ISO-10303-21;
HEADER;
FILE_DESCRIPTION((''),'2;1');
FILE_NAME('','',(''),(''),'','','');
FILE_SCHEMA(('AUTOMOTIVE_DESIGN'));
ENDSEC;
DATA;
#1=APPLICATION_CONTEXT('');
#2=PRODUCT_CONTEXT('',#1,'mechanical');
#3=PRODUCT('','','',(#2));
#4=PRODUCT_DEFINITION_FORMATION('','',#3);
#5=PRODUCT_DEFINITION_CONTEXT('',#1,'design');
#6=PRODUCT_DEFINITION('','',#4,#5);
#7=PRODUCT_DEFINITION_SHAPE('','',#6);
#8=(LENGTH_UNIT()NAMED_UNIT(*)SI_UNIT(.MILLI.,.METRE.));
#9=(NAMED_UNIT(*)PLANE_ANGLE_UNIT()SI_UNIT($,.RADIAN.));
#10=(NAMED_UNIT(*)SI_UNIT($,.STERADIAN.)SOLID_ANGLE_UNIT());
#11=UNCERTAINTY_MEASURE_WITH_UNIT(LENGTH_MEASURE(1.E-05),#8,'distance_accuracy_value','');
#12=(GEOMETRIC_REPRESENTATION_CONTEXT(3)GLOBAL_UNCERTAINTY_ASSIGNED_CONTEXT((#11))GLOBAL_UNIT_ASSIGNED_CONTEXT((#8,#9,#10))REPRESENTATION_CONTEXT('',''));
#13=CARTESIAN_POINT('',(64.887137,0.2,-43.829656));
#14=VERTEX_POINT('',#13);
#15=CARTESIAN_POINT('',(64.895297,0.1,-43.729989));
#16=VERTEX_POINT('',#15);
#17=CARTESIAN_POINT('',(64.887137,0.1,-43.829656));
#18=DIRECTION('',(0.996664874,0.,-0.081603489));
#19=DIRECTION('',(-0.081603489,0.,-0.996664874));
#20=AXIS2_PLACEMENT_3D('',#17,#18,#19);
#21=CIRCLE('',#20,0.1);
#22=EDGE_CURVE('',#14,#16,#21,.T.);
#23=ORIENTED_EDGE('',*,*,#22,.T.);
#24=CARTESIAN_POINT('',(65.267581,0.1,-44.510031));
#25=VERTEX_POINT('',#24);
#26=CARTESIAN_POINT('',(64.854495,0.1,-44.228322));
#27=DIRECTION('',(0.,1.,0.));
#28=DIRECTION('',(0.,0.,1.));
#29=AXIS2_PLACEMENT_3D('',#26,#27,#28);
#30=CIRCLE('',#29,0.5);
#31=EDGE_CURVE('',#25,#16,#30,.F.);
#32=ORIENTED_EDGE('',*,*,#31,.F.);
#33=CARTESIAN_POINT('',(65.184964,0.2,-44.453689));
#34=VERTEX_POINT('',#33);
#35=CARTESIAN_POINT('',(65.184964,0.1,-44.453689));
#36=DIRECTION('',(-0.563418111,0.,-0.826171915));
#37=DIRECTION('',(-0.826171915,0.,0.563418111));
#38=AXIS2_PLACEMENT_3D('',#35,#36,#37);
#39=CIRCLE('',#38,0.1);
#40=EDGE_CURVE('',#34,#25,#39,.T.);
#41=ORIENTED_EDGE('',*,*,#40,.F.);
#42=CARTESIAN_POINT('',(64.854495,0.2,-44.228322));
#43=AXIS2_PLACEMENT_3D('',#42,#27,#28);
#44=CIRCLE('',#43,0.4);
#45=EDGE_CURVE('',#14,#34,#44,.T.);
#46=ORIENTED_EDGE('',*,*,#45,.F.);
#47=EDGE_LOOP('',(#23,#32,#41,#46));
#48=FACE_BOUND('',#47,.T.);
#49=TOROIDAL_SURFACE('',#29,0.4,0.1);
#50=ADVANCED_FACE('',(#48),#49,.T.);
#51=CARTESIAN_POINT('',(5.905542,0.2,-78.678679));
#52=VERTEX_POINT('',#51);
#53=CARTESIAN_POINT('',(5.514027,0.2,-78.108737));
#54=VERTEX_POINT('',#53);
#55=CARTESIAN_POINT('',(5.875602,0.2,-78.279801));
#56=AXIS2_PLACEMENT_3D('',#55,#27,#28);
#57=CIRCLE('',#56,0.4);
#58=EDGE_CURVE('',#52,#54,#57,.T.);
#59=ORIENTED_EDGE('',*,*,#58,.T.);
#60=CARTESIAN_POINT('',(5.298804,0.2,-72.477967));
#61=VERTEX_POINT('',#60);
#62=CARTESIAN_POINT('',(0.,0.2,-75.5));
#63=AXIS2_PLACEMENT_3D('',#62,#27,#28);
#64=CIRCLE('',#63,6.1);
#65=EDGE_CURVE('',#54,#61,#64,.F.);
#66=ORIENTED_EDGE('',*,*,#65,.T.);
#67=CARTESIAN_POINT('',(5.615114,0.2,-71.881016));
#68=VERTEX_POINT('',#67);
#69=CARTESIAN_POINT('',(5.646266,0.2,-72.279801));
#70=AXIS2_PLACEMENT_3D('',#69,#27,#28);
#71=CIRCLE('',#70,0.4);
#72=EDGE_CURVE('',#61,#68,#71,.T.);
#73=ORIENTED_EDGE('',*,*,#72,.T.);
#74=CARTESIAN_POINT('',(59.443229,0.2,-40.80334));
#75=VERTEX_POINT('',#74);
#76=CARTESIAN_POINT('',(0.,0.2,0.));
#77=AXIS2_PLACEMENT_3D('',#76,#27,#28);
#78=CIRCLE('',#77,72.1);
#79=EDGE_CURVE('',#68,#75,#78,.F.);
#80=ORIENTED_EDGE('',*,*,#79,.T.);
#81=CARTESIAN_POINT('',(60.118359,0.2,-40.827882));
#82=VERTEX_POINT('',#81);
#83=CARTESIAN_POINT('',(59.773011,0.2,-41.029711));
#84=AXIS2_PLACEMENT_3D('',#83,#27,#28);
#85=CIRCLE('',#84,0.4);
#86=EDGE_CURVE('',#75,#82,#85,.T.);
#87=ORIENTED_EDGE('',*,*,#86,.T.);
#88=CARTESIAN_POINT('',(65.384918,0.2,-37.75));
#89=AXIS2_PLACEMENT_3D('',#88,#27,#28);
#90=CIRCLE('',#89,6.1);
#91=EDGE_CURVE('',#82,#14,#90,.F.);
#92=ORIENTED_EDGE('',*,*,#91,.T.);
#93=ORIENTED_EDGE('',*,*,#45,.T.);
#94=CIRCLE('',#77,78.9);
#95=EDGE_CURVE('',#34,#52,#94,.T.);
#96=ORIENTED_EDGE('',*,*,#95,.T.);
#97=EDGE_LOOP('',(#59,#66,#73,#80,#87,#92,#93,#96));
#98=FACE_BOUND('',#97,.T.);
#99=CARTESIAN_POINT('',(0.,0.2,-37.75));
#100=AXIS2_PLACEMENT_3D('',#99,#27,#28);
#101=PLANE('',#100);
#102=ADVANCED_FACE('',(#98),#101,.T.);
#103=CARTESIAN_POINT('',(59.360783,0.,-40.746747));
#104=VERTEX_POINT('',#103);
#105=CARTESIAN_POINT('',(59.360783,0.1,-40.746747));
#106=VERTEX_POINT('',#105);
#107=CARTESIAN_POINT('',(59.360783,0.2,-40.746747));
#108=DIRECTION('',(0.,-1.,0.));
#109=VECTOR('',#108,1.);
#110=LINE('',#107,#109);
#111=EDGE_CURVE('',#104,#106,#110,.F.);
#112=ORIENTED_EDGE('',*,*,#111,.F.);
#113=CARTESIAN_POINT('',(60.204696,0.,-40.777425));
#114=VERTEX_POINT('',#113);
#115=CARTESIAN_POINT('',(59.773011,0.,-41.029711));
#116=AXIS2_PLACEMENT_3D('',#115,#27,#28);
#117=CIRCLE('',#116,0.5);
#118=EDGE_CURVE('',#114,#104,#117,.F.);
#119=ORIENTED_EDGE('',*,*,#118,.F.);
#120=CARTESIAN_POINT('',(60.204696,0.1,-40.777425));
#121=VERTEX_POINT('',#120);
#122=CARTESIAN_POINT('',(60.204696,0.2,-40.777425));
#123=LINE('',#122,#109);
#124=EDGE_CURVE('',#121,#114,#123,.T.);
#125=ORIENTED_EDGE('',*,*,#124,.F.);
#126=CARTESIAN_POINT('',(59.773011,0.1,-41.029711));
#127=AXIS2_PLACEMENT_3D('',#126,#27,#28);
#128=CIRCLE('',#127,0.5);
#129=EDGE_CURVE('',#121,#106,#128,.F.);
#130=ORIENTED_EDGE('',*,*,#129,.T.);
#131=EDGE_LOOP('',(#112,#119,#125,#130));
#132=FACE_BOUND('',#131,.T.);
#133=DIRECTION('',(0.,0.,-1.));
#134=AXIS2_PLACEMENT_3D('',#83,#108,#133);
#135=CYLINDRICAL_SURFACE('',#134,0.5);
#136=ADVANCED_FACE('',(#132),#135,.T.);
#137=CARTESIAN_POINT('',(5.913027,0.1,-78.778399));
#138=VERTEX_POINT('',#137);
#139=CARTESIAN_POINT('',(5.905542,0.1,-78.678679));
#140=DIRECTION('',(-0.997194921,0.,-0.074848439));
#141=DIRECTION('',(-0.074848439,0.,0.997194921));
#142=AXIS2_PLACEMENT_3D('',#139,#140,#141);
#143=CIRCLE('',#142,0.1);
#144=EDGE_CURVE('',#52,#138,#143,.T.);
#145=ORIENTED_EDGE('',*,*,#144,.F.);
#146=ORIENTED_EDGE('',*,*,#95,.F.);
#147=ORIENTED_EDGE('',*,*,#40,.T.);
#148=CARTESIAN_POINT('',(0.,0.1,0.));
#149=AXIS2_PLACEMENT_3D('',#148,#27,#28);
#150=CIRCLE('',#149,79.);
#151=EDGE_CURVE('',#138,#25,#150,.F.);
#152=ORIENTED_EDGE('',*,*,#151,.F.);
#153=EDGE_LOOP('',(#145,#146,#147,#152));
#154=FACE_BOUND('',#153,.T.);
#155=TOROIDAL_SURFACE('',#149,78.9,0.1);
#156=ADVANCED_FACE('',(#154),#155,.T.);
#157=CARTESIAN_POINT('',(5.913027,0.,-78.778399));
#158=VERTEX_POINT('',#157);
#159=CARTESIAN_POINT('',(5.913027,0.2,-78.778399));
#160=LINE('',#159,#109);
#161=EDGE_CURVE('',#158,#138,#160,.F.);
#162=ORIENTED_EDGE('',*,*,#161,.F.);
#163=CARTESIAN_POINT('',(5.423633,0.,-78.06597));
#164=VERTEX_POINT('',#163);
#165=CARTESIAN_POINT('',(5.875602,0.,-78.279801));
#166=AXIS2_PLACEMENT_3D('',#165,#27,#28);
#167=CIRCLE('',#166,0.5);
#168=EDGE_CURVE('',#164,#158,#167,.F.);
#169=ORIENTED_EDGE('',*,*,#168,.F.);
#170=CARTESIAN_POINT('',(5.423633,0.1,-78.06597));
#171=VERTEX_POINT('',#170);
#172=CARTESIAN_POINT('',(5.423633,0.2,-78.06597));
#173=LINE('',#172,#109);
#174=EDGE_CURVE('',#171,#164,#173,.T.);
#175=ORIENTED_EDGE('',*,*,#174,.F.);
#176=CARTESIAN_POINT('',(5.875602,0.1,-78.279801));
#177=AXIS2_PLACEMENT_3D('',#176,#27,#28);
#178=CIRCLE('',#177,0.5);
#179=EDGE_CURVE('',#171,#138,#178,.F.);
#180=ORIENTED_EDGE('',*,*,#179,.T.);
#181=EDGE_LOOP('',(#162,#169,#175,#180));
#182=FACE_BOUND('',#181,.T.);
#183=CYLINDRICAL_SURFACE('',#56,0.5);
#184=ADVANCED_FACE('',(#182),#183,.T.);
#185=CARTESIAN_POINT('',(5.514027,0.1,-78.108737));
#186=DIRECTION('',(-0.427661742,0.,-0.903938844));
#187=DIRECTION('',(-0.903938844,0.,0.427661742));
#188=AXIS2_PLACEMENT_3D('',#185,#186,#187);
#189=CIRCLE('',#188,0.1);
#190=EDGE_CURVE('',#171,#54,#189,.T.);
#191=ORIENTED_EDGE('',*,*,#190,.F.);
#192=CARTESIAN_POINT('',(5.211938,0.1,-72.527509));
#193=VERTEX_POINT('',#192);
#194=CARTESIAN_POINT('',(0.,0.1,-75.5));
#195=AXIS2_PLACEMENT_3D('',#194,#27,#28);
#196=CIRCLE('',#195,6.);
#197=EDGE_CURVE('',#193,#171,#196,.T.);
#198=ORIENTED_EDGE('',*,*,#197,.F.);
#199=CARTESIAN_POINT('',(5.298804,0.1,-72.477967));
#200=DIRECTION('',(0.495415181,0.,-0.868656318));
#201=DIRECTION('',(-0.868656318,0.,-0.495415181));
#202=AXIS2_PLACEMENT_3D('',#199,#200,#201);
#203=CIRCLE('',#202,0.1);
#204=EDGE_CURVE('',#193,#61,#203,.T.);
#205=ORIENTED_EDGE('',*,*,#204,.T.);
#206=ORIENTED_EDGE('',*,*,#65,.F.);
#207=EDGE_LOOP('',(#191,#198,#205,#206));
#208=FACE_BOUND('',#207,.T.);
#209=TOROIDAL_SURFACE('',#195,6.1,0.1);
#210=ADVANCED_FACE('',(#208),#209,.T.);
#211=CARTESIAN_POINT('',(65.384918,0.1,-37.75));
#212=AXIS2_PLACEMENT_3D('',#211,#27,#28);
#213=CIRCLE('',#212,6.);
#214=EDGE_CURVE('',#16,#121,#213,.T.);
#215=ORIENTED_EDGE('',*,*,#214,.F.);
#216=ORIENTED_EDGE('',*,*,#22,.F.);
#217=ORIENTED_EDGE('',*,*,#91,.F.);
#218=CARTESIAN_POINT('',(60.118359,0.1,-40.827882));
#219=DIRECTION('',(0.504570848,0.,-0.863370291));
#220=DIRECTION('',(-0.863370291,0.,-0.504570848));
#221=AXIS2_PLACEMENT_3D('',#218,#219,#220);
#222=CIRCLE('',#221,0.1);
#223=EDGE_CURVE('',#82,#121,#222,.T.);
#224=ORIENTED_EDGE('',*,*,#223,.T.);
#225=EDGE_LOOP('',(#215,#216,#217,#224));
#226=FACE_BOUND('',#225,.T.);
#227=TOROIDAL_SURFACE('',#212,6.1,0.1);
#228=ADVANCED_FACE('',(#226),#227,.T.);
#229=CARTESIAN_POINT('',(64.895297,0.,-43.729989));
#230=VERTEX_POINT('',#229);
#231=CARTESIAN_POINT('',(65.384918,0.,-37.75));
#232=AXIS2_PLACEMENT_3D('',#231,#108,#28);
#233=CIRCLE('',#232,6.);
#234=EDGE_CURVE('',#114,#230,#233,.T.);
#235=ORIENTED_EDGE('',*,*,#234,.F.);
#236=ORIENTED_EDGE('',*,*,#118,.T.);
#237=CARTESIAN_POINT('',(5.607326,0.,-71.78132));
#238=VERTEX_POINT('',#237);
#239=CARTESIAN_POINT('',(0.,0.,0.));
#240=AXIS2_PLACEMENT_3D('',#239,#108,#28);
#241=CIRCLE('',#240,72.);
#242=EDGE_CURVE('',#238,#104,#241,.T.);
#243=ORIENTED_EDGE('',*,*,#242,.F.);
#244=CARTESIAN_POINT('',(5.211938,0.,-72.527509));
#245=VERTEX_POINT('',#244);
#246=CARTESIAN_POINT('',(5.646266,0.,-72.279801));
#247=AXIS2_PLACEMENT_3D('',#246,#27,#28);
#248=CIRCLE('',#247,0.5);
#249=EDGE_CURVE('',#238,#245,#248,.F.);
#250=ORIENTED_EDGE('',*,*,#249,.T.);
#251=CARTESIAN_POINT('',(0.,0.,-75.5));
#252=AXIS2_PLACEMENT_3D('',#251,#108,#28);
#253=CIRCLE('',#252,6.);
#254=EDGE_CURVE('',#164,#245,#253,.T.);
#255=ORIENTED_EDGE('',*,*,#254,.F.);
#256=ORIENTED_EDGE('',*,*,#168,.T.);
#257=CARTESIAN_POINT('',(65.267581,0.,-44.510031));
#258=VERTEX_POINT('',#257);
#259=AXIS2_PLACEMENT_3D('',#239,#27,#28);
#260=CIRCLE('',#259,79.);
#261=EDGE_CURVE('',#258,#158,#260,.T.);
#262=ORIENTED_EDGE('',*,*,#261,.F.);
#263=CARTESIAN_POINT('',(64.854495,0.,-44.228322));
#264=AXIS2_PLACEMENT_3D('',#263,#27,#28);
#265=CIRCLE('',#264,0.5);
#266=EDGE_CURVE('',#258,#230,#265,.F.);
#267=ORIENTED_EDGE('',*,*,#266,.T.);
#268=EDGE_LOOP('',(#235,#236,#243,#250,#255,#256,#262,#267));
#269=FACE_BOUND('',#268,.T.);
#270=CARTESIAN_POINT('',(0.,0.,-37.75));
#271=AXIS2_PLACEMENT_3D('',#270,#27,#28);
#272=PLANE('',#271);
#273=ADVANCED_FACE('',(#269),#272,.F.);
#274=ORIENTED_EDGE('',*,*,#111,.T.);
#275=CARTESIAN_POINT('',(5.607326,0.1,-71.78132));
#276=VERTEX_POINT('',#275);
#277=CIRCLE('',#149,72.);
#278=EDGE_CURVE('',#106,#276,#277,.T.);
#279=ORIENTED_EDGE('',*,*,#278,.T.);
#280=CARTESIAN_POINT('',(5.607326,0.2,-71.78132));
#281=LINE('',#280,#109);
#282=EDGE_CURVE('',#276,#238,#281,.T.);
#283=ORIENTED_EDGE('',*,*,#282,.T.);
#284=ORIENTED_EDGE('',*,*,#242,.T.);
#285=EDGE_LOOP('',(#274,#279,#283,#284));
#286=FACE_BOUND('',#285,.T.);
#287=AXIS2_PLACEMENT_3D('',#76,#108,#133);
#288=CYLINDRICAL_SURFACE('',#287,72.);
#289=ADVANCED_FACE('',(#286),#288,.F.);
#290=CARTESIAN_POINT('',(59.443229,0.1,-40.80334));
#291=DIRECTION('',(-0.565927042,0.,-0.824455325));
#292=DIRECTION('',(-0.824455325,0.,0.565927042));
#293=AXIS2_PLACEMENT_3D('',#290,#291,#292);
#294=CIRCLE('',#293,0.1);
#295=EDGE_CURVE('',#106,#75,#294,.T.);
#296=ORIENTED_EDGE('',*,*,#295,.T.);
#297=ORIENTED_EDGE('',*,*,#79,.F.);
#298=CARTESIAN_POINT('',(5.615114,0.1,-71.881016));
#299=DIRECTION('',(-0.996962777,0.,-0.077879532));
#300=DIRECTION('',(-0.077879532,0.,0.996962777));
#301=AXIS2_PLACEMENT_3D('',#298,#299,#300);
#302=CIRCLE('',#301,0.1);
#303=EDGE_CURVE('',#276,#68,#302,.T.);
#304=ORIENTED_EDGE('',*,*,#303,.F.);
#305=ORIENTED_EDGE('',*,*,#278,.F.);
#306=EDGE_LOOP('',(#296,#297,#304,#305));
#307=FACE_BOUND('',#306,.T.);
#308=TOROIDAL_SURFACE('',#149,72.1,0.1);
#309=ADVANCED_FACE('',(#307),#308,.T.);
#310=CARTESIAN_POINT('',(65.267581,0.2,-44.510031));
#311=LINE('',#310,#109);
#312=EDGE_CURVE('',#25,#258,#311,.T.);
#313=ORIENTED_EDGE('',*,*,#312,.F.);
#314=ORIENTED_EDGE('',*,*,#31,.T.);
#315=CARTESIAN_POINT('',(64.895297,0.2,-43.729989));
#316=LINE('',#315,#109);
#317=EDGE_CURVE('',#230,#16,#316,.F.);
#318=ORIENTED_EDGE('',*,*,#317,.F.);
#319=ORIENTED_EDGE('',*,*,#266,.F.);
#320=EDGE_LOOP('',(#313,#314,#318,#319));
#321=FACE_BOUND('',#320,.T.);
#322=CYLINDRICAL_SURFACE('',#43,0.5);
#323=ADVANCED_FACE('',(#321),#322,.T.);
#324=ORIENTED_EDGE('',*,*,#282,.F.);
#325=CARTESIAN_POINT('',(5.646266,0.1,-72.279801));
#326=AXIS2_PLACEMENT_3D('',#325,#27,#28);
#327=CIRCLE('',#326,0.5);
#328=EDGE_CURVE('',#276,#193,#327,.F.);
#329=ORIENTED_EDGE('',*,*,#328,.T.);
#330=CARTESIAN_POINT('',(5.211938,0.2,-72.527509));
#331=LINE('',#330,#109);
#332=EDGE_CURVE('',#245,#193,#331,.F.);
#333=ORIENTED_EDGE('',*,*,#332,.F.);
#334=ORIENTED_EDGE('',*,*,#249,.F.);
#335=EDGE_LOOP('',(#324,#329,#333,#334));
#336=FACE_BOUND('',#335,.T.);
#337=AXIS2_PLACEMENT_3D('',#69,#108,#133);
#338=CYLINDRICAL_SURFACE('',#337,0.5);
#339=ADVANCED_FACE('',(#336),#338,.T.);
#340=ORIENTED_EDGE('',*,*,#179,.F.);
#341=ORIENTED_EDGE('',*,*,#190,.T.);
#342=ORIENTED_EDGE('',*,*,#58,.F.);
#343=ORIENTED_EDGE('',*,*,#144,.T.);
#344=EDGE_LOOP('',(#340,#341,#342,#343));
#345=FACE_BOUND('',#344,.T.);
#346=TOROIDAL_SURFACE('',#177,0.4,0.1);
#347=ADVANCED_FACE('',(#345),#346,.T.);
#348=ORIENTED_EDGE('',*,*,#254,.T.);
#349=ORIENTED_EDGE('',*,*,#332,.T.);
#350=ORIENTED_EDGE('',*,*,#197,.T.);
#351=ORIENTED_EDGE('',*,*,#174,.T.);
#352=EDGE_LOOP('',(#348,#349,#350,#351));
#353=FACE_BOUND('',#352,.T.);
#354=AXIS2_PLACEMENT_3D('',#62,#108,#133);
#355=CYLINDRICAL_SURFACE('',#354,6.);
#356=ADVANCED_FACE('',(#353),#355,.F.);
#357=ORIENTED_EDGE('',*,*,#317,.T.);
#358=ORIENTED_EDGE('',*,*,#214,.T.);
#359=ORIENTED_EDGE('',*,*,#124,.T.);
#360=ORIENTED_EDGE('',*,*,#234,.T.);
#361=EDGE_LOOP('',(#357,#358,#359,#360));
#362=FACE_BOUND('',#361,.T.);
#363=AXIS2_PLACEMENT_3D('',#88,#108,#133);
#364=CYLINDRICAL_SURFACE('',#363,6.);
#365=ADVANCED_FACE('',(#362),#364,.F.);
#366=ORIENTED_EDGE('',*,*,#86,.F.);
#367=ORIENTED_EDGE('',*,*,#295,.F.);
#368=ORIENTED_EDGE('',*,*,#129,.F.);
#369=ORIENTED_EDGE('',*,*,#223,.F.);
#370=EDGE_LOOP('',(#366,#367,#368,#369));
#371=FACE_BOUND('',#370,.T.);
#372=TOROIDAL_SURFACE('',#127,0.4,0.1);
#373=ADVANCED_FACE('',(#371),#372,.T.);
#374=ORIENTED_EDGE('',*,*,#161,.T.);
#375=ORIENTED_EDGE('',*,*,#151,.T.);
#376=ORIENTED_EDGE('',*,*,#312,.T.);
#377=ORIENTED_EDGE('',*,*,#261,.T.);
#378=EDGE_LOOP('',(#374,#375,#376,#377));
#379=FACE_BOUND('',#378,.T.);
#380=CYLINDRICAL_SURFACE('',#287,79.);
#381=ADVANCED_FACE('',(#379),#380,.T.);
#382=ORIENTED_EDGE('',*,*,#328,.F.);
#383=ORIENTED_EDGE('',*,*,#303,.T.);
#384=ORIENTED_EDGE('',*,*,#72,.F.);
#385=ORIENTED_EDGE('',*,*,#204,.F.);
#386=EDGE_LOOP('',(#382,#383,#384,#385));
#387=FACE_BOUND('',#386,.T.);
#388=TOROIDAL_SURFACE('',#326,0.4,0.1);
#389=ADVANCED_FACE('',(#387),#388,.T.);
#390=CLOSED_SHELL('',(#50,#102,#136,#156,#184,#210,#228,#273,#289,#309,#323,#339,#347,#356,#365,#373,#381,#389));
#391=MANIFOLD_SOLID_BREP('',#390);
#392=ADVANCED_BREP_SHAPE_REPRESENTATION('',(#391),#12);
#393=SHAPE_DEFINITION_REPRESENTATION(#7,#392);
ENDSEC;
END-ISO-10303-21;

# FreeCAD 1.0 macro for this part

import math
import FreeCAD as App
import Part
import Sketcher


def edges_at(feature, points):
    """Names of the edges that pass closest to the given points."""
    edges = feature.Shape.Edges
    near = lambda p: min(range(len(edges)), key=lambda i: edges[i].distToShape(Part.Vertex(*p))[0])
    return sorted({f"Edge{near(p) + 1}" for p in points})

doc = App.newDocument("Part")
body = doc.addObject("PartDesign::Body", "Body")

# Sketch on XZ plane
sketch1 = body.newObject("Sketcher::SketchObject", "Sketch")
sketch1.AttachmentSupport = (doc.getObject("XZ_Plane"), [""])
sketch1.MapMode = "FlatFace"
sketch1.addGeometry(Part.ArcOfCircle(Part.Circle(App.Vector(65.384918, -37.75, 0), App.Vector(0, 0, 1), 6), math.radians(-157.556789), math.radians(-86.143195)), False)
sketch1.addGeometry(Part.ArcOfCircle(Part.Circle(App.Vector(0, 0, 0), App.Vector(0, 0, 1), 79), math.radians(-86.383908), math.radians(-33.616092)), False)
sketch1.addGeometry(Part.ArcOfCircle(Part.Circle(App.Vector(0, -75.5, 0), App.Vector(0, 0, 1), 6), math.radians(-33.856805), math.radians(37.556789)), False)
sketch1.addGeometry(Part.ArcOfCircle(Part.Circle(App.Vector(0, 0, 0), App.Vector(0, 0, 1), 72), math.radians(-86.212141), math.radians(-33.787859)), False)
sketch1.addConstraint(Sketcher.Constraint("Coincident", 0, 2, 1, 2))
sketch1.addConstraint(Sketcher.Constraint("Coincident", 1, 1, 2, 1))
sketch1.addConstraint(Sketcher.Constraint("Coincident", 2, 2, 3, 1))
sketch1.addConstraint(Sketcher.Constraint("Coincident", 3, 2, 0, 1))
sketch1.addConstraint(Sketcher.Constraint("Coincident", 1, 3, -1, 1))
sketch1.addConstraint(Sketcher.Constraint("Coincident", 3, 3, -1, 1))
sketch1.addConstraint(Sketcher.Constraint("Equal", 0, 2))
sketch1.addConstraint(Sketcher.Constraint("PointOnObject", 2, 3, -2))
sketch1.addConstraint(Sketcher.Constraint("Radius", 0, 6.0))
sketch1.addConstraint(Sketcher.Constraint("Radius", 1, 79.0))
sketch1.addConstraint(Sketcher.Constraint("Radius", 3, 72.0))
sketch1.addConstraint(Sketcher.Constraint("DistanceY", 1, 1, 2, 2, 7.0))
sketch1.addConstraint(Sketcher.Constraint("DistanceY", 0, 3, -1, 1, 37.75))
sketch1.addConstraint(Sketcher.Constraint("DistanceX", 2, 2, 0, 2, 61.031999))
pad1 = body.newObject("PartDesign::Pad", "Pad")
pad1.Profile = sketch1
pad1.Length = 0.2
pad1.Reversed = True
doc.recompute()

fillet = body.newObject("PartDesign::Fillet", "Fillet")
fillet.Base = (pad1, edges_at(pad1, [
    (65.788, 0.1, -43.736),
    (59.839, 0.1, -40.041),
    (4.756, 0.1, -71.843),
    (4.983, 0.1, -78.843),
]))
fillet.Radius = 0.5
doc.recompute()

fillet2 = body.newObject("PartDesign::Fillet", "Fillet001")
fillet2.Base = (fillet, edges_at(fillet, [
    (36, 0.2, -62.354),
    (5.996, 0.2, -75.271),
    (39.5, 0.2, -68.416),
    (62.189, 0.2, -42.828),
    (65.306, 0.2, -44.013),
    (59.791, 0.2, -40.53),
    (5.463, 0.2, -78.563),
    (5.204, 0.2, -72.046),
]))
fillet2.Radius = 0.1

doc.recompute()
